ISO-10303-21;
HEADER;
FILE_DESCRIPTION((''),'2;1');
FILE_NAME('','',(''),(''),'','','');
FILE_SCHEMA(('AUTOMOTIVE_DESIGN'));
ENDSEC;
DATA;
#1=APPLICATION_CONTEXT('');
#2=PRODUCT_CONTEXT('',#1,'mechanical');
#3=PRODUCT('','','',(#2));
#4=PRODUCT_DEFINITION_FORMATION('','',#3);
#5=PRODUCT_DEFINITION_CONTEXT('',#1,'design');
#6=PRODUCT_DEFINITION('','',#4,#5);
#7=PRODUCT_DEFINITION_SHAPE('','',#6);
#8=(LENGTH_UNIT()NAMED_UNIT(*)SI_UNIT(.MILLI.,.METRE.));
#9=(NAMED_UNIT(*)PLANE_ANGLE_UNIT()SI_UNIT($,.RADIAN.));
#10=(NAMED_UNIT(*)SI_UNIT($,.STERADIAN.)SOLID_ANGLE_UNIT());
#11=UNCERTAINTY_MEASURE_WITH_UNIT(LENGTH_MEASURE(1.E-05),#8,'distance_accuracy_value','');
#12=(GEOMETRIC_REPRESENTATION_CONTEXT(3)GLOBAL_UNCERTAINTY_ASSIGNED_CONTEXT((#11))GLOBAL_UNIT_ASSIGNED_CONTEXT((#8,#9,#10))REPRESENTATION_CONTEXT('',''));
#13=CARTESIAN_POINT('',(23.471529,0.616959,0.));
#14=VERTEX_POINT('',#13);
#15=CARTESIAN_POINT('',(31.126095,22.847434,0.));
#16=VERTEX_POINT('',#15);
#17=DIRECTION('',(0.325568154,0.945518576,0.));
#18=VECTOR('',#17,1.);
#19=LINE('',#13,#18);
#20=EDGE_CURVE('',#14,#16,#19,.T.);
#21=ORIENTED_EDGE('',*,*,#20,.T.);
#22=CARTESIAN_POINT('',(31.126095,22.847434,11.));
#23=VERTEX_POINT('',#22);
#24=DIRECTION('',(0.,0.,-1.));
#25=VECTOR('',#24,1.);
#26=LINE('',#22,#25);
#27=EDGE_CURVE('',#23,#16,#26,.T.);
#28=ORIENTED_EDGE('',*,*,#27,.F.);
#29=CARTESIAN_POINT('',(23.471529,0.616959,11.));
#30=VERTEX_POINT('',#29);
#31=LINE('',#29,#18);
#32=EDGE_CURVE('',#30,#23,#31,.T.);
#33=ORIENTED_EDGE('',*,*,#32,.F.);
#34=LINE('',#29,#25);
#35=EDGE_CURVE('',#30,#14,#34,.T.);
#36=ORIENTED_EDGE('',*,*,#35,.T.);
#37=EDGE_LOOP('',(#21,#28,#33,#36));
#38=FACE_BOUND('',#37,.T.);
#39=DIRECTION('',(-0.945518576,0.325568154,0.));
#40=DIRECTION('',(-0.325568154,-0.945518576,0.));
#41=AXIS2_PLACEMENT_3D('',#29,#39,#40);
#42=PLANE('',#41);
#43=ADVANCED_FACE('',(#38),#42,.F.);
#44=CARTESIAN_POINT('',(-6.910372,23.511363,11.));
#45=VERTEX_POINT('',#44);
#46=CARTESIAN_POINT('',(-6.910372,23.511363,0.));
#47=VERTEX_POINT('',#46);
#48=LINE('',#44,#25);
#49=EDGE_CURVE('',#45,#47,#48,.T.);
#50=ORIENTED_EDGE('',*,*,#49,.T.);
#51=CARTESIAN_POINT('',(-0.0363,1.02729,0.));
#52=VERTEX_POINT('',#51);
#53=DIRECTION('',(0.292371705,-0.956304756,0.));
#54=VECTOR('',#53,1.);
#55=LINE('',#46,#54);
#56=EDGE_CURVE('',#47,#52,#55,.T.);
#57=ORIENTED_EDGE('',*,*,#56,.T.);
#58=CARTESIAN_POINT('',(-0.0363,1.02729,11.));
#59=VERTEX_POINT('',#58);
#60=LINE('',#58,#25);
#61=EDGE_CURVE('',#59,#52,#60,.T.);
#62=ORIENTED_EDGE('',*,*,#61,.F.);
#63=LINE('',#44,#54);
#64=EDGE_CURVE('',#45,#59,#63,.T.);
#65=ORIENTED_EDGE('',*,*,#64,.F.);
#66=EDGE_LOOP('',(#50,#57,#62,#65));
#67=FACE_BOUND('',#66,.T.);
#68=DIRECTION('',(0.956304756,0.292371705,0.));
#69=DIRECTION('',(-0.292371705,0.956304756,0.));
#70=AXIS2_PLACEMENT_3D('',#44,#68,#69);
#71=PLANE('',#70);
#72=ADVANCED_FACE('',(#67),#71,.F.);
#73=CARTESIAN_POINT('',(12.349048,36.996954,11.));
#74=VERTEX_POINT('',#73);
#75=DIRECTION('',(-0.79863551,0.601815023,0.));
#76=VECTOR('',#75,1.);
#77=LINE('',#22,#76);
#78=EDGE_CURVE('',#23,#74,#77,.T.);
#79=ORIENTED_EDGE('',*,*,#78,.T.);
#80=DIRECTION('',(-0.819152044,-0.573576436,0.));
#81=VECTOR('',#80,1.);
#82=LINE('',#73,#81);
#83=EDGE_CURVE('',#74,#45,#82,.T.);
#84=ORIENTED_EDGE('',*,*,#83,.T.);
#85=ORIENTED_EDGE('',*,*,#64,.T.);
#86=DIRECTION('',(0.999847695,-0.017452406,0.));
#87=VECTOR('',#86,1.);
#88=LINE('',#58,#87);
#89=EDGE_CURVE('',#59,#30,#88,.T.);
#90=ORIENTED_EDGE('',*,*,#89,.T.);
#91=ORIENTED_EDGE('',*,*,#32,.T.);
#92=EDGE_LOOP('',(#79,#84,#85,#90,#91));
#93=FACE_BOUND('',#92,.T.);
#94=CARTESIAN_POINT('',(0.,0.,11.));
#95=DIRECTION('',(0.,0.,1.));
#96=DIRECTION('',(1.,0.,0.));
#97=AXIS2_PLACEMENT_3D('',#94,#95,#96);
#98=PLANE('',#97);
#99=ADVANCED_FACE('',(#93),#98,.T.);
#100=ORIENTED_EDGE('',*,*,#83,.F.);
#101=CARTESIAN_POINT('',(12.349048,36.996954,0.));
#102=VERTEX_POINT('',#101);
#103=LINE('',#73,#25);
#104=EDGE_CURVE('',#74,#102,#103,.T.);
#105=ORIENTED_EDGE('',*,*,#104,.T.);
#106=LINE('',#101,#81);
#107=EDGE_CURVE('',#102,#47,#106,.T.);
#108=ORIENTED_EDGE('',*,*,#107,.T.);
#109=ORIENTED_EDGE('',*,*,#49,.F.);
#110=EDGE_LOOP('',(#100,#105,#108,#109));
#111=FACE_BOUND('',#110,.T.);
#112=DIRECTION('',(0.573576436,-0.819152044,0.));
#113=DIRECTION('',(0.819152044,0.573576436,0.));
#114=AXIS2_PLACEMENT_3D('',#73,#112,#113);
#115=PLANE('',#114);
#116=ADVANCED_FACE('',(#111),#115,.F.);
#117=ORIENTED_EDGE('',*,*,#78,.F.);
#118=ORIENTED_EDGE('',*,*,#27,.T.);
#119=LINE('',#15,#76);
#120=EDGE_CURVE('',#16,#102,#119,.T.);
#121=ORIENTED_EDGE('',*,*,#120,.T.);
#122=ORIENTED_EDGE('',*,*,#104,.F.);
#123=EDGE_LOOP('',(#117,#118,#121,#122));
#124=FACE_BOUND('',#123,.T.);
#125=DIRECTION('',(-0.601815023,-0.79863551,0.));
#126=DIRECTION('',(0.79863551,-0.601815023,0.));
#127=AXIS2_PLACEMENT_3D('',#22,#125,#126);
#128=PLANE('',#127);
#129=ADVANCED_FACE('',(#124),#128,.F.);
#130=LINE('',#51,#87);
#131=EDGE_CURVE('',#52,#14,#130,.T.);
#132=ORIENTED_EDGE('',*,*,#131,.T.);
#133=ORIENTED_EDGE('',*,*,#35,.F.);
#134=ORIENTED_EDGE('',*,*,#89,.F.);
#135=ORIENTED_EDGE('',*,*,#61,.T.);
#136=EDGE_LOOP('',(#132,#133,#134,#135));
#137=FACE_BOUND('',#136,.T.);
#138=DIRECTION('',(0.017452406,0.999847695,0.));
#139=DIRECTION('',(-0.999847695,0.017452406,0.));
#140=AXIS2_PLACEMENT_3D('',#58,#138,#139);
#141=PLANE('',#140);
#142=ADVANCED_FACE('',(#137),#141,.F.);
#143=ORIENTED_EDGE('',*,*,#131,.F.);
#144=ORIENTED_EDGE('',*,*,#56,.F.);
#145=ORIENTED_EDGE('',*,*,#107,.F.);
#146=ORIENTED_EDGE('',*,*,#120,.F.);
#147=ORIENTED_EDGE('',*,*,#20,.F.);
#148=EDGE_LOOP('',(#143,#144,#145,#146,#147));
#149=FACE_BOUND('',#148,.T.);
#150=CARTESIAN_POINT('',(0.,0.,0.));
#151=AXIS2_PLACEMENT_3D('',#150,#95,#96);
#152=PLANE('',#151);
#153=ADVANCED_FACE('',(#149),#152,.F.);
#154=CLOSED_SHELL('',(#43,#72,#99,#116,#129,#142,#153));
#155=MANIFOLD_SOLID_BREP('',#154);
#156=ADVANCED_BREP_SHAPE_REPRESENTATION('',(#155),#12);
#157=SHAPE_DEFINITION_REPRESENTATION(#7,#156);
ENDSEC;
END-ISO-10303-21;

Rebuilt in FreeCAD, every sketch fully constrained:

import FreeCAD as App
import Part
import Sketcher
from FreeCAD import Vector
Q = App.Units.Quantity

doc = App.newDocument("Part")
params = doc.addObject("Spreadsheet::Sheet", "Params")
for row, (alias, value) in enumerate([
    ("pad1_length", "11 mm"),
], start=1):
    params.set(f"A{row}", alias)
    params.set(f"B{row}", "=" + value)
    params.setAlias(f"B{row}", alias)

body = doc.addObject("PartDesign::Body", "Body")

# Sketch on XY plane
sketch1 = body.newObject("Sketcher::SketchObject", "Sketch")
sketch1.AttachmentSupport = (doc.getObject("XY_Plane"), [""])
sketch1.MapMode = "FlatFace"
sketch1.addGeometry([
    Part.LineSegment(Vector(31.126095, 22.847434, 0), Vector(12.349048, 36.996954, 0)),  # 0
    Part.LineSegment(Vector(12.349048, 36.996954, 0), Vector(-6.910372, 23.511363, 0)),  # 1
    Part.LineSegment(Vector(-6.910372, 23.511363, 0), Vector(-0.0363, 1.02729, 0)),  # 2
    Part.LineSegment(Vector(-0.0363, 1.02729, 0), Vector(23.471529, 0.616959, 0)),  # 3
    Part.LineSegment(Vector(23.471529, 0.616959, 0), Vector(31.126095, 22.847434, 0)),  # 4
], False)
sketch1.addConstraint([
    Sketcher.Constraint("Coincident", 0, 2, 1, 1),
    Sketcher.Constraint("Coincident", 1, 2, 2, 1),
    Sketcher.Constraint("Coincident", 2, 2, 3, 1),
    Sketcher.Constraint("Coincident", 3, 2, 4, 1),
    Sketcher.Constraint("Coincident", 4, 2, 0, 1),
    Sketcher.Constraint("Equal", 0, 1),
    Sketcher.Constraint("Equal", 1, 2),
    Sketcher.Constraint("Equal", 2, 3),
    Sketcher.Constraint("Equal", 3, 4),
    Sketcher.Constraint("Angle", 0, Q("143 deg")),
    Sketcher.Constraint("Angle", 1, Q("-145 deg")),
    Sketcher.Constraint("Angle", 2, Q("-73 deg")),
    Sketcher.Constraint("DistanceX", 2, 2, -1, 1, 0.0363),
    Sketcher.Constraint("DistanceX", 1, 2, 3, 2, 30.3819),
    Sketcher.Constraint("DistanceY", -1, 1, 2, 2, 1.02729),
])
pad1 = body.newObject("PartDesign::Pad", "Pad")
pad1.Profile = sketch1
pad1.setExpression("Length", "Params.pad1_length")

doc.recompute()
